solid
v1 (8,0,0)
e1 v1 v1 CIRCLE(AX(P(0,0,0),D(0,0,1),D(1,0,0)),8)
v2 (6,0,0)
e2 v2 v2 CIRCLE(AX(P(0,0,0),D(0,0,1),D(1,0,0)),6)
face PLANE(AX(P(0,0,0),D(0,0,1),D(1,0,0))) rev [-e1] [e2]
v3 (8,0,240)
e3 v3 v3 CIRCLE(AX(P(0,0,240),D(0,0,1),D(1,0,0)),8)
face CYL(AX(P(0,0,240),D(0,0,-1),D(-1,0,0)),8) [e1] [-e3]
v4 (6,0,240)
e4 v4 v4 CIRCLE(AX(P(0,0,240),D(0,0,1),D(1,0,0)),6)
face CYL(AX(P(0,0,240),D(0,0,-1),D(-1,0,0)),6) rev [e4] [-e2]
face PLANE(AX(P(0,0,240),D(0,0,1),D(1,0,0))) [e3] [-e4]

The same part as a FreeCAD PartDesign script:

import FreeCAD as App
import Part
import Sketcher

V = App.Vector
Q = App.Units.Quantity

doc = App.newDocument("Part")
body = doc.addObject("PartDesign::Body", "Body")

# Sketch on XY plane
sketch1 = body.newObject("Sketcher::SketchObject", "Sketch")
sketch1.AttachmentSupport = (doc.getObject("XY_Plane"), [""])
sketch1.MapMode = "FlatFace"
sketch1.addGeometry(Part.Circle(V(0, 0, 0), V(0, 0, 1), 8), False)
sketch1.addGeometry(Part.Circle(V(0, 0, 0), V(0, 0, 1), 6), False)
sketch1.addConstraint(Sketcher.Constraint("Coincident", 0, 3, -1, 1))
sketch1.addConstraint(Sketcher.Constraint("Coincident", 1, 3, -1, 1))
sketch1.addConstraint(Sketcher.Constraint("Diameter", 0, Q("16 mm")))
sketch1.addConstraint(Sketcher.Constraint("Diameter", 1, Q("12 mm")))
pad1 = body.newObject("PartDesign::Pad", "Pad")
pad1.Profile = sketch1
pad1.Length = 240

doc.recompute()
